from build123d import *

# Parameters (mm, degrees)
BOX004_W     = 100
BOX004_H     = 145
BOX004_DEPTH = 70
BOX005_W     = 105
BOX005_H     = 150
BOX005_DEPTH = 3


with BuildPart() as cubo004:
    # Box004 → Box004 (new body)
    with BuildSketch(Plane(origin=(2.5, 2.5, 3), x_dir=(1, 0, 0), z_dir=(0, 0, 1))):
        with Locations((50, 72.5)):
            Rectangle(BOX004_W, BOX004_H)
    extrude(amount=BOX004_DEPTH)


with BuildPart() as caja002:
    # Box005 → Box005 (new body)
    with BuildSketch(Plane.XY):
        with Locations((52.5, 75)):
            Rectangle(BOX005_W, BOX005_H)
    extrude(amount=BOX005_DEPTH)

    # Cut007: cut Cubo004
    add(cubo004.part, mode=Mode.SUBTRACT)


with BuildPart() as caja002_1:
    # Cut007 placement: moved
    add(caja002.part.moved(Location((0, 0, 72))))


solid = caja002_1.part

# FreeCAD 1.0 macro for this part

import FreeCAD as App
import Part
import Sketcher

V = App.Vector

doc = App.newDocument("Part")
body = doc.addObject("PartDesign::Body", "Body")

# Sketch on XY plane
sketch1 = doc.addObject("Sketcher::SketchObject", "Sketch")
body.addObject(sketch1)
sketch1.AttachmentSupport = (doc.XY_Plane, [""])
sketch1.MapMode = "FlatFace"
sketch1.AttachmentOffset = App.Placement(V(0, 0, 3), App.Rotation())
sketch1.addGeometry([
    Part.LineSegment(V(2, 148, 0), V(2, 2, 0)),
    Part.LineSegment(V(2, 2, 0), V(102, 2, 0)),
    Part.LineSegment(V(102, 2, 0), V(102, 148, 0)),
    Part.LineSegment(V(102, 148, 0), V(2, 148, 0)),
], False)
sketch1.addConstraint([
    Sketcher.Constraint("Coincident", 0, 2, 1, 1),
    Sketcher.Constraint("Coincident", 1, 2, 2, 1),
    Sketcher.Constraint("Coincident", 2, 2, 3, 1),
    Sketcher.Constraint("Coincident", 3, 2, 0, 1),
    Sketcher.Constraint("Vertical", 0),
    Sketcher.Constraint("Horizontal", 1),
    Sketcher.Constraint("Vertical", 2),
    Sketcher.Constraint("Horizontal", 3),
    Sketcher.Constraint("DistanceX", 1, 1, 1, 2, 100.0),
    Sketcher.Constraint("DistanceY", 0, 2, 0, 1, 145.0),
    Sketcher.Constraint("DistanceX", -1, 1, 0, 2, 2.5),
    Sketcher.Constraint("DistanceY", -1, 1, 0, 2, 2.5),
])
pad1 = doc.addObject("PartDesign::Pad", "Pad")
body.addObject(pad1)
pad1.Profile = sketch1
pad1.Length = 70
body2 = doc.addObject("PartDesign::Body", "Body001")

# Sketch on XY plane
sketch2 = doc.addObject("Sketcher::SketchObject", "Sketch001")
body2.addObject(sketch2)
sketch2.AttachmentSupport = (doc.getObject("XY_Plane001"), [""])
sketch2.MapMode = "FlatFace"
sketch2.addGeometry([
    Part.LineSegment(V(0, 150, 0), V(0, 0, 0)),
    Part.LineSegment(V(0, 0, 0), V(105, 0, 0)),
    Part.LineSegment(V(105, 0, 0), V(105, 150, 0)),
    Part.LineSegment(V(105, 150, 0), V(0, 150, 0)),
], False)
sketch2.addConstraint([
    Sketcher.Constraint("Coincident", 0, 2, 1, 1),
    Sketcher.Constraint("Coincident", 1, 2, 2, 1),
    Sketcher.Constraint("Coincident", 2, 2, 3, 1),
    Sketcher.Constraint("Coincident", 3, 2, 0, 1),
    Sketcher.Constraint("Vertical", 0),
    Sketcher.Constraint("Horizontal", 1),
    Sketcher.Constraint("Vertical", 2),
    Sketcher.Constraint("Horizontal", 3),
    Sketcher.Constraint("Coincident", 0, 2, -1, 1),
    Sketcher.Constraint("DistanceX", 1, 1, 1, 2, 105.0),
    Sketcher.Constraint("DistanceY", 0, 2, 0, 1, 150.0),
])
pad2 = doc.addObject("PartDesign::Pad", "Pad001")
body2.addObject(pad2)
pad2.Profile = sketch2
pad2.Length = 3
doc.recompute()

boolean = doc.addObject("PartDesign::Boolean", "Boolean")
body2.addObject(boolean)
boolean.Type = "Cut"
boolean.addObjects([body])
body3 = doc.addObject("PartDesign::Body", "Body002")
doc.recompute()

body2.Placement = App.Placement(V(0, 0, 72), App.Rotation(V(0, 0, 1), 0))
boolean2 = doc.addObject("PartDesign::Boolean", "Boolean001")
body3.addObject(boolean2)
boolean2.Type = "Fuse"
boolean2.addObjects([body2])

doc.recompute()
